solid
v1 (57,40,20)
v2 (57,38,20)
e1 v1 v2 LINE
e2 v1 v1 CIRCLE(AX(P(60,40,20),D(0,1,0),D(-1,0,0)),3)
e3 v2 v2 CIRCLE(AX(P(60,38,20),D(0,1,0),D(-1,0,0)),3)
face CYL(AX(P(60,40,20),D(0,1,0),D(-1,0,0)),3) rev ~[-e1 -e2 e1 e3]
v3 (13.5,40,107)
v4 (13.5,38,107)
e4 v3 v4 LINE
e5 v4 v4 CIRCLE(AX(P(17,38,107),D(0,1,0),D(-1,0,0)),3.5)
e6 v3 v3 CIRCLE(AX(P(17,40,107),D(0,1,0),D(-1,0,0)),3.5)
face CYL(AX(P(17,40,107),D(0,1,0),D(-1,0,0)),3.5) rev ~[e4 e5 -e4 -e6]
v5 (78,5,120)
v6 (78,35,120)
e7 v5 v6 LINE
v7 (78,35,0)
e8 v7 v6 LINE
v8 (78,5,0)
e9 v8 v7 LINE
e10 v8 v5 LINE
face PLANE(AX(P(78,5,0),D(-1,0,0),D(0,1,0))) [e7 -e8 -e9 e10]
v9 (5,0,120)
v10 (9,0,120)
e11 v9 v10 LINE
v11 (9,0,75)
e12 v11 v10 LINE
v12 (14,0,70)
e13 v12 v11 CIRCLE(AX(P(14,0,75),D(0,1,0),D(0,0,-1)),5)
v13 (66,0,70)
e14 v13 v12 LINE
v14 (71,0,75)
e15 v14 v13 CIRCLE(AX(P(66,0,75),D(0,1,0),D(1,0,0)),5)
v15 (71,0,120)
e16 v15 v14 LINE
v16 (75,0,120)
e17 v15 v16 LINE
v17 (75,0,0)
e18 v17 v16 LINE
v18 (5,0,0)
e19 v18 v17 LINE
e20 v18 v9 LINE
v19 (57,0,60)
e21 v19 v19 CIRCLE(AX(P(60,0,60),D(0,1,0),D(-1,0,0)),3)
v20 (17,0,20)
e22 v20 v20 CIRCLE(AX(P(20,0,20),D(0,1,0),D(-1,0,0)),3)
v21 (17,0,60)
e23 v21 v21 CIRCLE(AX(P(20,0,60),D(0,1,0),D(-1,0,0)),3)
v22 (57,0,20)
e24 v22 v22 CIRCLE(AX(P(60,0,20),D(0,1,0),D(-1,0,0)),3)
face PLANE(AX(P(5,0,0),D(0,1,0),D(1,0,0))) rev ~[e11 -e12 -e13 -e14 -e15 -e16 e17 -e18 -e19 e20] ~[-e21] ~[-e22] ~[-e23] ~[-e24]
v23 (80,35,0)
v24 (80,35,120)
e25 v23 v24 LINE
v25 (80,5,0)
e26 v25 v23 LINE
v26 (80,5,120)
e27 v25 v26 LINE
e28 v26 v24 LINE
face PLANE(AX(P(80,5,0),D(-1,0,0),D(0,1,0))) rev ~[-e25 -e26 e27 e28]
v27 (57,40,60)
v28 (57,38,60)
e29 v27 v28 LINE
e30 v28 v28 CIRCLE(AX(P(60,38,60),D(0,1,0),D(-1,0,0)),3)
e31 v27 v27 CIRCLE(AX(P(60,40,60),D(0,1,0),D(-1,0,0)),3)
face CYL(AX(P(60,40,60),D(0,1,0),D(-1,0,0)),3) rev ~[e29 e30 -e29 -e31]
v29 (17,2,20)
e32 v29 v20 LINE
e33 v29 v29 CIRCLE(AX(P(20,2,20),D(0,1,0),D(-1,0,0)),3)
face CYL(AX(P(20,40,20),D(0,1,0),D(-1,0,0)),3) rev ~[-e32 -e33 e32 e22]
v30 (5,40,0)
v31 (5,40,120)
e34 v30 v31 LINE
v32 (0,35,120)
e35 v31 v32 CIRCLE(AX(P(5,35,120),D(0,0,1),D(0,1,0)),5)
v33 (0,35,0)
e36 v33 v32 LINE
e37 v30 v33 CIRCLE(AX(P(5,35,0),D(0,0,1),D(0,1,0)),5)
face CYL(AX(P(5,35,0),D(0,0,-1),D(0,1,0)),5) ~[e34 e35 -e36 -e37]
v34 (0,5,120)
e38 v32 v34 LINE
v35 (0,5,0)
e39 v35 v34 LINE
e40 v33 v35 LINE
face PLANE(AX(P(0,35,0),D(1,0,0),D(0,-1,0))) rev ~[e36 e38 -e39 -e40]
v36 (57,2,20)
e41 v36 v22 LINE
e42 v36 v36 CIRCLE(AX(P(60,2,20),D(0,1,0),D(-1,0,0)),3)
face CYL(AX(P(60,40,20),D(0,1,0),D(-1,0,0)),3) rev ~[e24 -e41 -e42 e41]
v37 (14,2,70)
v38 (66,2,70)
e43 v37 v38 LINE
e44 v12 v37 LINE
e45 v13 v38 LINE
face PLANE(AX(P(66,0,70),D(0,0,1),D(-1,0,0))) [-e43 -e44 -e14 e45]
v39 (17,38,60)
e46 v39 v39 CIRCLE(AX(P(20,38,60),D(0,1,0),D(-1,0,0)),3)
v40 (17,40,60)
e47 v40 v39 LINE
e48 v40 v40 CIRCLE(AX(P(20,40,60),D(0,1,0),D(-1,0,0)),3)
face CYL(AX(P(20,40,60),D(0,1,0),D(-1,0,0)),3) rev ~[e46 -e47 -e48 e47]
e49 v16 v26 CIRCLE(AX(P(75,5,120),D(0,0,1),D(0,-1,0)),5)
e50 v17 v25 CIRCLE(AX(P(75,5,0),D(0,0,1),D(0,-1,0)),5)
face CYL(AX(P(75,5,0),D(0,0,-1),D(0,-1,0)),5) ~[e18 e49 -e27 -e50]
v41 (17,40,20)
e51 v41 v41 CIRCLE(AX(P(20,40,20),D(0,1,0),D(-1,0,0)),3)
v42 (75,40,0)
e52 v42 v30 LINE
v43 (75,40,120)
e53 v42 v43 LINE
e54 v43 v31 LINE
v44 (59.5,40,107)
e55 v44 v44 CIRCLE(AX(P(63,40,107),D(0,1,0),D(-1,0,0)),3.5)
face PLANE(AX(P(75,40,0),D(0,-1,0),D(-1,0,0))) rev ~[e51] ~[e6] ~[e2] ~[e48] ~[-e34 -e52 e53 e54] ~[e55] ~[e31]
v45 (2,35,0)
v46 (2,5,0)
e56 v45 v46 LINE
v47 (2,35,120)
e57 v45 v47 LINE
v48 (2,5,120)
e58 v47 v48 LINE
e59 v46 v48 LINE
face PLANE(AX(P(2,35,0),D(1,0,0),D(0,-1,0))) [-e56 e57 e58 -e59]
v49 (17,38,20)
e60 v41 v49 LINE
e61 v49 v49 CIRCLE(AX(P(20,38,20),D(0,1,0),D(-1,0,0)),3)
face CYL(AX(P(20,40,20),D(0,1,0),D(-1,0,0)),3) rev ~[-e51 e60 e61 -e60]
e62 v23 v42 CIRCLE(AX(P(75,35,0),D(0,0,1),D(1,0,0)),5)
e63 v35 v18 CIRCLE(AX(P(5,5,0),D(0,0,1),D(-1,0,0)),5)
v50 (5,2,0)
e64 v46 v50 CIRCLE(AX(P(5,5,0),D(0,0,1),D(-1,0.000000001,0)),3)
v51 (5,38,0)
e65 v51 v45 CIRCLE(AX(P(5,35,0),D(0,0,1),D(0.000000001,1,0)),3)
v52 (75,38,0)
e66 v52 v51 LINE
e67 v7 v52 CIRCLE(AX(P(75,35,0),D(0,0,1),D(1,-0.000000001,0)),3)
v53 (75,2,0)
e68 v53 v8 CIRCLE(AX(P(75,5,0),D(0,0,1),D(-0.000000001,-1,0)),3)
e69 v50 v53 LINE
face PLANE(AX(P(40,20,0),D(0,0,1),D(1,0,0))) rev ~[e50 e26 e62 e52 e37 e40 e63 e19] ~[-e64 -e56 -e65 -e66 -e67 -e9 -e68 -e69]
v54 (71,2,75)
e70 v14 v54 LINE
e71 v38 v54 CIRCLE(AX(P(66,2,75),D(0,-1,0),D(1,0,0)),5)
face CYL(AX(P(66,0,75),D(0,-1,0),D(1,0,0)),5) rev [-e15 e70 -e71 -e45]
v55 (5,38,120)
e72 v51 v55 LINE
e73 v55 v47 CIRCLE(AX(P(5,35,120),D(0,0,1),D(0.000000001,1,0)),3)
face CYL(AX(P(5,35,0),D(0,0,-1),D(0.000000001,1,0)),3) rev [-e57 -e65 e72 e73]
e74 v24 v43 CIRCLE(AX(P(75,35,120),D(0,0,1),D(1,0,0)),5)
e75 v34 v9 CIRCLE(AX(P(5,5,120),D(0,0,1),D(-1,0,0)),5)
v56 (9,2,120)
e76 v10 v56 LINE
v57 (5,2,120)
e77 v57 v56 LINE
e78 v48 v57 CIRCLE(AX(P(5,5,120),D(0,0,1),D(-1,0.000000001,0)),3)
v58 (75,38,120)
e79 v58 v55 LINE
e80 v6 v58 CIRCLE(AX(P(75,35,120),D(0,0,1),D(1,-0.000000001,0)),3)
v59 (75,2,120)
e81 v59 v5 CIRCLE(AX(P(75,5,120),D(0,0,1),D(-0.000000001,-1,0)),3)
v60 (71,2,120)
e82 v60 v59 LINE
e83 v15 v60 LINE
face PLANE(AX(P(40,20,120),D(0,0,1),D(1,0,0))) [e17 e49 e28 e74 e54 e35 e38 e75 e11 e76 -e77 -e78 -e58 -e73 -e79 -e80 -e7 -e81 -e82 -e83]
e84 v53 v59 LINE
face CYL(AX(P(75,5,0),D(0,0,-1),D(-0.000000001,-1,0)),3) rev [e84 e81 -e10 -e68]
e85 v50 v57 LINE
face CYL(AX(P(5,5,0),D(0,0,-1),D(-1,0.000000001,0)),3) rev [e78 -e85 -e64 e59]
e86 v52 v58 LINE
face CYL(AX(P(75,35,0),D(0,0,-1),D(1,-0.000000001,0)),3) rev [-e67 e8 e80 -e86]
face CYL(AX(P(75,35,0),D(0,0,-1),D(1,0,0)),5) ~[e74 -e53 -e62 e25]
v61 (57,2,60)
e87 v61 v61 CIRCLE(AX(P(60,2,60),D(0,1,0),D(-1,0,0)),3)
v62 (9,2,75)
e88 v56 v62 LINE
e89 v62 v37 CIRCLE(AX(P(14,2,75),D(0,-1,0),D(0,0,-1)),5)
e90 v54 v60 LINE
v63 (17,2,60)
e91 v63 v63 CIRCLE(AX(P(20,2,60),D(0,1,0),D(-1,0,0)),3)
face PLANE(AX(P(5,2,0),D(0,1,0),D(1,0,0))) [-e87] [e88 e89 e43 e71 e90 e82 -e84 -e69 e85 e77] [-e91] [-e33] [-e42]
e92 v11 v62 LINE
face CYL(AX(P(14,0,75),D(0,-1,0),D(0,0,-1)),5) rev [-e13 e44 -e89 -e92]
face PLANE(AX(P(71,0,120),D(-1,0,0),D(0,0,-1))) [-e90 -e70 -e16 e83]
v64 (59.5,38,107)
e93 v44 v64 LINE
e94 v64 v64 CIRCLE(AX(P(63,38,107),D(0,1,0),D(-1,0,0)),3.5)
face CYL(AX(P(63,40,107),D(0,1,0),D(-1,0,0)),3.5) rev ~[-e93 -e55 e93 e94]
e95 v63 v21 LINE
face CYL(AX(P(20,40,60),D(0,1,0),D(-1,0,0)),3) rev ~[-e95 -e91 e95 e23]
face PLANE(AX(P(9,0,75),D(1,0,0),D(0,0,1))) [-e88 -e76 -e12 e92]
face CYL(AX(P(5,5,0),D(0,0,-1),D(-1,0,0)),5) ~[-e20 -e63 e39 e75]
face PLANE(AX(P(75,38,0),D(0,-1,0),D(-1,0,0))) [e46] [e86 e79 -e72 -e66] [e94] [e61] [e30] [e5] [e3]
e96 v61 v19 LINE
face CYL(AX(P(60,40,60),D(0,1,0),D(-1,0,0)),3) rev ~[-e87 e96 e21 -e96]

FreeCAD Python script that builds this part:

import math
import FreeCAD as App
import Part
import Sketcher
Q = App.Units.Quantity

doc = App.newDocument("Part")
body = doc.addObject("PartDesign::Body", "Body")

sketch1 = doc.addObject("Sketcher::SketchObject", "Sketch")
body.addObject(sketch1)
sketch1.AttachmentSupport = (doc.XY_Plane, [""])
sketch1.MapMode = "FlatFace"
sketch1.addGeometry(Part.LineSegment(App.Vector(0, 35, 0), App.Vector(0, 5, 0)), False)
sketch1.addGeometry(Part.ArcOfCircle(Part.Circle(App.Vector(5, 5, 0), App.Vector(0, 0, 1), 5), math.radians(180), math.radians(270)), False)
sketch1.addGeometry(Part.LineSegment(App.Vector(5, 0, 0), App.Vector(75, 0, 0)), False)
sketch1.addGeometry(Part.ArcOfCircle(Part.Circle(App.Vector(75, 5, 0), App.Vector(0, 0, 1), 5), math.radians(-90), math.radians(0)), False)
sketch1.addGeometry(Part.LineSegment(App.Vector(80, 5, 0), App.Vector(80, 35, 0)), False)
sketch1.addGeometry(Part.ArcOfCircle(Part.Circle(App.Vector(75, 35, 0), App.Vector(0, 0, 1), 5), math.radians(0), math.radians(90)), False)
sketch1.addGeometry(Part.LineSegment(App.Vector(75, 40, 0), App.Vector(5, 40, 0)), False)
sketch1.addGeometry(Part.ArcOfCircle(Part.Circle(App.Vector(5, 35, 0), App.Vector(0, 0, 1), 5), math.radians(90), math.radians(180)), False)
sketch1.addGeometry(Part.LineSegment(App.Vector(78, 35, 0), App.Vector(78, 5, 0)), False)
sketch1.addGeometry(Part.ArcOfCircle(Part.Circle(App.Vector(75, 5, 0), App.Vector(0, 0, 1), 3), math.radians(-90), math.radians(0)), False)
sketch1.addGeometry(Part.LineSegment(App.Vector(75, 2, 0), App.Vector(5, 2, 0)), False)
sketch1.addGeometry(Part.ArcOfCircle(Part.Circle(App.Vector(5, 5, 0), App.Vector(0, 0, 1), 3), math.radians(180), math.radians(270)), False)
sketch1.addGeometry(Part.LineSegment(App.Vector(2, 5, 0), App.Vector(2, 35, 0)), False)
sketch1.addGeometry(Part.ArcOfCircle(Part.Circle(App.Vector(5, 35, 0), App.Vector(0, 0, 1), 3), math.radians(90), math.radians(180)), False)
sketch1.addGeometry(Part.LineSegment(App.Vector(5, 38, 0), App.Vector(75, 38, 0)), False)
sketch1.addGeometry(Part.ArcOfCircle(Part.Circle(App.Vector(75, 35, 0), App.Vector(0, 0, 1), 3), math.radians(0), math.radians(90)), False)
sketch1.addConstraint(Sketcher.Constraint("Tangent", 0, 2, 1, 1))
sketch1.addConstraint(Sketcher.Constraint("Tangent", 1, 2, 2, 1))
sketch1.addConstraint(Sketcher.Constraint("Tangent", 2, 2, 3, 1))
sketch1.addConstraint(Sketcher.Constraint("Tangent", 3, 2, 4, 1))
sketch1.addConstraint(Sketcher.Constraint("Tangent", 4, 2, 5, 1))
sketch1.addConstraint(Sketcher.Constraint("Tangent", 5, 2, 6, 1))
sketch1.addConstraint(Sketcher.Constraint("Tangent", 6, 2, 7, 1))
sketch1.addConstraint(Sketcher.Constraint("Tangent", 7, 2, 0, 1))
sketch1.addConstraint(Sketcher.Constraint("Tangent", 8, 2, 9, 2))
sketch1.addConstraint(Sketcher.Constraint("Tangent", 9, 1, 10, 1))
sketch1.addConstraint(Sketcher.Constraint("Tangent", 10, 2, 11, 2))
sketch1.addConstraint(Sketcher.Constraint("Tangent", 11, 1, 12, 1))
sketch1.addConstraint(Sketcher.Constraint("Tangent", 12, 2, 13, 2))
sketch1.addConstraint(Sketcher.Constraint("Tangent", 13, 1, 14, 1))
sketch1.addConstraint(Sketcher.Constraint("Tangent", 14, 2, 15, 2))
sketch1.addConstraint(Sketcher.Constraint("Tangent", 15, 1, 8, 1))
sketch1.addConstraint(Sketcher.Constraint("Vertical", 0))
sketch1.addConstraint(Sketcher.Constraint("Horizontal", 2))
sketch1.addConstraint(Sketcher.Constraint("Vertical", 4))
sketch1.addConstraint(Sketcher.Constraint("Horizontal", 6))
sketch1.addConstraint(Sketcher.Constraint("Vertical", 8))
sketch1.addConstraint(Sketcher.Constraint("Horizontal", 10))
sketch1.addConstraint(Sketcher.Constraint("Vertical", 12))
sketch1.addConstraint(Sketcher.Constraint("Horizontal", 14))
sketch1.addConstraint(Sketcher.Constraint("Coincident", 9, 3, 3, 3))
sketch1.addConstraint(Sketcher.Constraint("Coincident", 11, 3, 1, 3))
sketch1.addConstraint(Sketcher.Constraint("Coincident", 13, 3, 7, 3))
sketch1.addConstraint(Sketcher.Constraint("Equal", 1, 3))
sketch1.addConstraint(Sketcher.Constraint("Equal", 3, 5))
sketch1.addConstraint(Sketcher.Constraint("Equal", 5, 7))
sketch1.addConstraint(Sketcher.Constraint("Equal", 13, 15))
sketch1.addConstraint(Sketcher.Constraint("PointOnObject", 0, 2, -2))
sketch1.addConstraint(Sketcher.Constraint("PointOnObject", 1, 2, -1))
sketch1.addConstraint(Sketcher.Constraint("Radius", 1, Q("5 mm")))
sketch1.addConstraint(Sketcher.Constraint("Radius", 9, Q("3 mm")))
sketch1.addConstraint(Sketcher.Constraint("DistanceX", 2, 1, 2, 2, Q("70 mm")))
sketch1.addConstraint(Sketcher.Constraint("DistanceY", 0, 2, 0, 1, Q("30 mm")))
pad1 = doc.addObject("PartDesign::Pad", "Pad")
body.addObject(pad1)
pad1.Profile = sketch1
pad1.Length = 120

sketch2 = doc.addObject("Sketcher::SketchObject", "Sketch001")
body.addObject(sketch2)
sketch2.AttachmentSupport = (doc.XZ_Plane, [""])
sketch2.MapMode = "FlatFace"
sketch2.addGeometry(Part.LineSegment(App.Vector(71, 120, 0), App.Vector(9, 120, 0)), False)
sketch2.addGeometry(Part.LineSegment(App.Vector(9, 120, 0), App.Vector(9, 75, 0)), False)
sketch2.addGeometry(Part.ArcOfCircle(Part.Circle(App.Vector(14, 75, 0), App.Vector(0, 0, 1), 5), math.radians(180), math.radians(270)), False)
sketch2.addGeometry(Part.LineSegment(App.Vector(14, 70, 0), App.Vector(66, 70, 0)), False)
sketch2.addGeometry(Part.ArcOfCircle(Part.Circle(App.Vector(66, 75, 0), App.Vector(0, 0, 1), 5), math.radians(-90), math.radians(0)), False)
sketch2.addGeometry(Part.LineSegment(App.Vector(71, 75, 0), App.Vector(71, 120, 0)), False)
sketch2.addConstraint(Sketcher.Constraint("Coincident", 0, 2, 1, 1))
sketch2.addConstraint(Sketcher.Constraint("Tangent", 1, 2, 2, 1))
sketch2.addConstraint(Sketcher.Constraint("Tangent", 2, 2, 3, 1))
sketch2.addConstraint(Sketcher.Constraint("Tangent", 3, 2, 4, 1))
sketch2.addConstraint(Sketcher.Constraint("Tangent", 4, 2, 5, 1))
sketch2.addConstraint(Sketcher.Constraint("Coincident", 5, 2, 0, 1))
sketch2.addConstraint(Sketcher.Constraint("Horizontal", 0))
sketch2.addConstraint(Sketcher.Constraint("Vertical", 1))
sketch2.addConstraint(Sketcher.Constraint("Horizontal", 3))
sketch2.addConstraint(Sketcher.Constraint("Vertical", 5))
sketch2.addConstraint(Sketcher.Constraint("Equal", 2, 4))
sketch2.addConstraint(Sketcher.Constraint("Radius", 2, Q("5 mm")))
sketch2.addConstraint(Sketcher.Constraint("DistanceX", 0, 2, 0, 1, Q("62 mm")))
sketch2.addConstraint(Sketcher.Constraint("DistanceY", 1, 2, 1, 1, Q("45 mm")))
sketch2.addConstraint(Sketcher.Constraint("DistanceX", -1, 1, 2, 3, Q("14 mm")))
sketch2.addConstraint(Sketcher.Constraint("DistanceY", -1, 1, 2, 3, Q("75 mm")))
pocket1 = doc.addObject("PartDesign::Pocket", "Pocket")
body.addObject(pocket1)
pocket1.Profile = sketch2
pocket1.Length = 10

sketch3 = doc.addObject("Sketcher::SketchObject", "Sketch002")
body.addObject(sketch3)
sketch3.AttachmentSupport = (doc.XZ_Plane, [""])
sketch3.MapMode = "FlatFace"
sketch3.AttachmentOffset = App.Placement(App.Vector(0, 0, -40), App.Rotation())
sketch3.addGeometry(Part.Circle(App.Vector(60, 20, 0), App.Vector(0, 0, 1), 3), False)
sketch3.addGeometry(Part.Circle(App.Vector(20, 20, 0), App.Vector(0, 0, 1), 3), False)
sketch3.addGeometry(Part.Circle(App.Vector(60, 60, 0), App.Vector(0, 0, 1), 3), False)
sketch3.addGeometry(Part.Circle(App.Vector(20, 60, 0), App.Vector(0, 0, 1), 3), False)
sketch3.addGeometry(Part.Circle(App.Vector(63, 107, 0), App.Vector(0, 0, 1), 3.5), False)
sketch3.addGeometry(Part.Circle(App.Vector(17, 107, 0), App.Vector(0, 0, 1), 3.5), False)
sketch3.addConstraint(Sketcher.Constraint("Equal", 0, 1))
sketch3.addConstraint(Sketcher.Constraint("Equal", 1, 2))
sketch3.addConstraint(Sketcher.Constraint("Equal", 2, 3))
sketch3.addConstraint(Sketcher.Constraint("Equal", 4, 5))
sketch3.addConstraint(Sketcher.Constraint("Horizontal", 0, 3, 1, 3))
sketch3.addConstraint(Sketcher.Constraint("Horizontal", 2, 3, 3, 3))
sketch3.addConstraint(Sketcher.Constraint("Horizontal", 4, 3, 5, 3))
sketch3.addConstraint(Sketcher.Constraint("Vertical", 0, 3, 2, 3))
sketch3.addConstraint(Sketcher.Constraint("Vertical", 1, 3, 3, 3))
sketch3.addConstraint(Sketcher.Constraint("Diameter", 0, Q("6 mm")))
sketch3.addConstraint(Sketcher.Constraint("Diameter", 4, Q("7 mm")))
sketch3.addConstraint(Sketcher.Constraint("DistanceX", -1, 1, 0, 3, Q("60 mm")))
sketch3.addConstraint(Sketcher.Constraint("DistanceY", -1, 1, 0, 3, Q("20 mm")))
sketch3.addConstraint(Sketcher.Constraint("DistanceX", -1, 1, 1, 3, Q("20 mm")))
sketch3.addConstraint(Sketcher.Constraint("DistanceY", -1, 1, 2, 3, Q("60 mm")))
sketch3.addConstraint(Sketcher.Constraint("DistanceX", -1, 1, 4, 3, Q("63 mm")))
sketch3.addConstraint(Sketcher.Constraint("DistanceY", -1, 1, 4, 3, Q("107 mm")))
sketch3.addConstraint(Sketcher.Constraint("DistanceX", -1, 1, 5, 3, Q("17 mm")))
pocket2 = doc.addObject("PartDesign::Pocket", "Pocket001")
body.addObject(pocket2)
pocket2.Profile = sketch3
pocket2.Length = 60
pocket2.Reversed = True

doc.recompute()
